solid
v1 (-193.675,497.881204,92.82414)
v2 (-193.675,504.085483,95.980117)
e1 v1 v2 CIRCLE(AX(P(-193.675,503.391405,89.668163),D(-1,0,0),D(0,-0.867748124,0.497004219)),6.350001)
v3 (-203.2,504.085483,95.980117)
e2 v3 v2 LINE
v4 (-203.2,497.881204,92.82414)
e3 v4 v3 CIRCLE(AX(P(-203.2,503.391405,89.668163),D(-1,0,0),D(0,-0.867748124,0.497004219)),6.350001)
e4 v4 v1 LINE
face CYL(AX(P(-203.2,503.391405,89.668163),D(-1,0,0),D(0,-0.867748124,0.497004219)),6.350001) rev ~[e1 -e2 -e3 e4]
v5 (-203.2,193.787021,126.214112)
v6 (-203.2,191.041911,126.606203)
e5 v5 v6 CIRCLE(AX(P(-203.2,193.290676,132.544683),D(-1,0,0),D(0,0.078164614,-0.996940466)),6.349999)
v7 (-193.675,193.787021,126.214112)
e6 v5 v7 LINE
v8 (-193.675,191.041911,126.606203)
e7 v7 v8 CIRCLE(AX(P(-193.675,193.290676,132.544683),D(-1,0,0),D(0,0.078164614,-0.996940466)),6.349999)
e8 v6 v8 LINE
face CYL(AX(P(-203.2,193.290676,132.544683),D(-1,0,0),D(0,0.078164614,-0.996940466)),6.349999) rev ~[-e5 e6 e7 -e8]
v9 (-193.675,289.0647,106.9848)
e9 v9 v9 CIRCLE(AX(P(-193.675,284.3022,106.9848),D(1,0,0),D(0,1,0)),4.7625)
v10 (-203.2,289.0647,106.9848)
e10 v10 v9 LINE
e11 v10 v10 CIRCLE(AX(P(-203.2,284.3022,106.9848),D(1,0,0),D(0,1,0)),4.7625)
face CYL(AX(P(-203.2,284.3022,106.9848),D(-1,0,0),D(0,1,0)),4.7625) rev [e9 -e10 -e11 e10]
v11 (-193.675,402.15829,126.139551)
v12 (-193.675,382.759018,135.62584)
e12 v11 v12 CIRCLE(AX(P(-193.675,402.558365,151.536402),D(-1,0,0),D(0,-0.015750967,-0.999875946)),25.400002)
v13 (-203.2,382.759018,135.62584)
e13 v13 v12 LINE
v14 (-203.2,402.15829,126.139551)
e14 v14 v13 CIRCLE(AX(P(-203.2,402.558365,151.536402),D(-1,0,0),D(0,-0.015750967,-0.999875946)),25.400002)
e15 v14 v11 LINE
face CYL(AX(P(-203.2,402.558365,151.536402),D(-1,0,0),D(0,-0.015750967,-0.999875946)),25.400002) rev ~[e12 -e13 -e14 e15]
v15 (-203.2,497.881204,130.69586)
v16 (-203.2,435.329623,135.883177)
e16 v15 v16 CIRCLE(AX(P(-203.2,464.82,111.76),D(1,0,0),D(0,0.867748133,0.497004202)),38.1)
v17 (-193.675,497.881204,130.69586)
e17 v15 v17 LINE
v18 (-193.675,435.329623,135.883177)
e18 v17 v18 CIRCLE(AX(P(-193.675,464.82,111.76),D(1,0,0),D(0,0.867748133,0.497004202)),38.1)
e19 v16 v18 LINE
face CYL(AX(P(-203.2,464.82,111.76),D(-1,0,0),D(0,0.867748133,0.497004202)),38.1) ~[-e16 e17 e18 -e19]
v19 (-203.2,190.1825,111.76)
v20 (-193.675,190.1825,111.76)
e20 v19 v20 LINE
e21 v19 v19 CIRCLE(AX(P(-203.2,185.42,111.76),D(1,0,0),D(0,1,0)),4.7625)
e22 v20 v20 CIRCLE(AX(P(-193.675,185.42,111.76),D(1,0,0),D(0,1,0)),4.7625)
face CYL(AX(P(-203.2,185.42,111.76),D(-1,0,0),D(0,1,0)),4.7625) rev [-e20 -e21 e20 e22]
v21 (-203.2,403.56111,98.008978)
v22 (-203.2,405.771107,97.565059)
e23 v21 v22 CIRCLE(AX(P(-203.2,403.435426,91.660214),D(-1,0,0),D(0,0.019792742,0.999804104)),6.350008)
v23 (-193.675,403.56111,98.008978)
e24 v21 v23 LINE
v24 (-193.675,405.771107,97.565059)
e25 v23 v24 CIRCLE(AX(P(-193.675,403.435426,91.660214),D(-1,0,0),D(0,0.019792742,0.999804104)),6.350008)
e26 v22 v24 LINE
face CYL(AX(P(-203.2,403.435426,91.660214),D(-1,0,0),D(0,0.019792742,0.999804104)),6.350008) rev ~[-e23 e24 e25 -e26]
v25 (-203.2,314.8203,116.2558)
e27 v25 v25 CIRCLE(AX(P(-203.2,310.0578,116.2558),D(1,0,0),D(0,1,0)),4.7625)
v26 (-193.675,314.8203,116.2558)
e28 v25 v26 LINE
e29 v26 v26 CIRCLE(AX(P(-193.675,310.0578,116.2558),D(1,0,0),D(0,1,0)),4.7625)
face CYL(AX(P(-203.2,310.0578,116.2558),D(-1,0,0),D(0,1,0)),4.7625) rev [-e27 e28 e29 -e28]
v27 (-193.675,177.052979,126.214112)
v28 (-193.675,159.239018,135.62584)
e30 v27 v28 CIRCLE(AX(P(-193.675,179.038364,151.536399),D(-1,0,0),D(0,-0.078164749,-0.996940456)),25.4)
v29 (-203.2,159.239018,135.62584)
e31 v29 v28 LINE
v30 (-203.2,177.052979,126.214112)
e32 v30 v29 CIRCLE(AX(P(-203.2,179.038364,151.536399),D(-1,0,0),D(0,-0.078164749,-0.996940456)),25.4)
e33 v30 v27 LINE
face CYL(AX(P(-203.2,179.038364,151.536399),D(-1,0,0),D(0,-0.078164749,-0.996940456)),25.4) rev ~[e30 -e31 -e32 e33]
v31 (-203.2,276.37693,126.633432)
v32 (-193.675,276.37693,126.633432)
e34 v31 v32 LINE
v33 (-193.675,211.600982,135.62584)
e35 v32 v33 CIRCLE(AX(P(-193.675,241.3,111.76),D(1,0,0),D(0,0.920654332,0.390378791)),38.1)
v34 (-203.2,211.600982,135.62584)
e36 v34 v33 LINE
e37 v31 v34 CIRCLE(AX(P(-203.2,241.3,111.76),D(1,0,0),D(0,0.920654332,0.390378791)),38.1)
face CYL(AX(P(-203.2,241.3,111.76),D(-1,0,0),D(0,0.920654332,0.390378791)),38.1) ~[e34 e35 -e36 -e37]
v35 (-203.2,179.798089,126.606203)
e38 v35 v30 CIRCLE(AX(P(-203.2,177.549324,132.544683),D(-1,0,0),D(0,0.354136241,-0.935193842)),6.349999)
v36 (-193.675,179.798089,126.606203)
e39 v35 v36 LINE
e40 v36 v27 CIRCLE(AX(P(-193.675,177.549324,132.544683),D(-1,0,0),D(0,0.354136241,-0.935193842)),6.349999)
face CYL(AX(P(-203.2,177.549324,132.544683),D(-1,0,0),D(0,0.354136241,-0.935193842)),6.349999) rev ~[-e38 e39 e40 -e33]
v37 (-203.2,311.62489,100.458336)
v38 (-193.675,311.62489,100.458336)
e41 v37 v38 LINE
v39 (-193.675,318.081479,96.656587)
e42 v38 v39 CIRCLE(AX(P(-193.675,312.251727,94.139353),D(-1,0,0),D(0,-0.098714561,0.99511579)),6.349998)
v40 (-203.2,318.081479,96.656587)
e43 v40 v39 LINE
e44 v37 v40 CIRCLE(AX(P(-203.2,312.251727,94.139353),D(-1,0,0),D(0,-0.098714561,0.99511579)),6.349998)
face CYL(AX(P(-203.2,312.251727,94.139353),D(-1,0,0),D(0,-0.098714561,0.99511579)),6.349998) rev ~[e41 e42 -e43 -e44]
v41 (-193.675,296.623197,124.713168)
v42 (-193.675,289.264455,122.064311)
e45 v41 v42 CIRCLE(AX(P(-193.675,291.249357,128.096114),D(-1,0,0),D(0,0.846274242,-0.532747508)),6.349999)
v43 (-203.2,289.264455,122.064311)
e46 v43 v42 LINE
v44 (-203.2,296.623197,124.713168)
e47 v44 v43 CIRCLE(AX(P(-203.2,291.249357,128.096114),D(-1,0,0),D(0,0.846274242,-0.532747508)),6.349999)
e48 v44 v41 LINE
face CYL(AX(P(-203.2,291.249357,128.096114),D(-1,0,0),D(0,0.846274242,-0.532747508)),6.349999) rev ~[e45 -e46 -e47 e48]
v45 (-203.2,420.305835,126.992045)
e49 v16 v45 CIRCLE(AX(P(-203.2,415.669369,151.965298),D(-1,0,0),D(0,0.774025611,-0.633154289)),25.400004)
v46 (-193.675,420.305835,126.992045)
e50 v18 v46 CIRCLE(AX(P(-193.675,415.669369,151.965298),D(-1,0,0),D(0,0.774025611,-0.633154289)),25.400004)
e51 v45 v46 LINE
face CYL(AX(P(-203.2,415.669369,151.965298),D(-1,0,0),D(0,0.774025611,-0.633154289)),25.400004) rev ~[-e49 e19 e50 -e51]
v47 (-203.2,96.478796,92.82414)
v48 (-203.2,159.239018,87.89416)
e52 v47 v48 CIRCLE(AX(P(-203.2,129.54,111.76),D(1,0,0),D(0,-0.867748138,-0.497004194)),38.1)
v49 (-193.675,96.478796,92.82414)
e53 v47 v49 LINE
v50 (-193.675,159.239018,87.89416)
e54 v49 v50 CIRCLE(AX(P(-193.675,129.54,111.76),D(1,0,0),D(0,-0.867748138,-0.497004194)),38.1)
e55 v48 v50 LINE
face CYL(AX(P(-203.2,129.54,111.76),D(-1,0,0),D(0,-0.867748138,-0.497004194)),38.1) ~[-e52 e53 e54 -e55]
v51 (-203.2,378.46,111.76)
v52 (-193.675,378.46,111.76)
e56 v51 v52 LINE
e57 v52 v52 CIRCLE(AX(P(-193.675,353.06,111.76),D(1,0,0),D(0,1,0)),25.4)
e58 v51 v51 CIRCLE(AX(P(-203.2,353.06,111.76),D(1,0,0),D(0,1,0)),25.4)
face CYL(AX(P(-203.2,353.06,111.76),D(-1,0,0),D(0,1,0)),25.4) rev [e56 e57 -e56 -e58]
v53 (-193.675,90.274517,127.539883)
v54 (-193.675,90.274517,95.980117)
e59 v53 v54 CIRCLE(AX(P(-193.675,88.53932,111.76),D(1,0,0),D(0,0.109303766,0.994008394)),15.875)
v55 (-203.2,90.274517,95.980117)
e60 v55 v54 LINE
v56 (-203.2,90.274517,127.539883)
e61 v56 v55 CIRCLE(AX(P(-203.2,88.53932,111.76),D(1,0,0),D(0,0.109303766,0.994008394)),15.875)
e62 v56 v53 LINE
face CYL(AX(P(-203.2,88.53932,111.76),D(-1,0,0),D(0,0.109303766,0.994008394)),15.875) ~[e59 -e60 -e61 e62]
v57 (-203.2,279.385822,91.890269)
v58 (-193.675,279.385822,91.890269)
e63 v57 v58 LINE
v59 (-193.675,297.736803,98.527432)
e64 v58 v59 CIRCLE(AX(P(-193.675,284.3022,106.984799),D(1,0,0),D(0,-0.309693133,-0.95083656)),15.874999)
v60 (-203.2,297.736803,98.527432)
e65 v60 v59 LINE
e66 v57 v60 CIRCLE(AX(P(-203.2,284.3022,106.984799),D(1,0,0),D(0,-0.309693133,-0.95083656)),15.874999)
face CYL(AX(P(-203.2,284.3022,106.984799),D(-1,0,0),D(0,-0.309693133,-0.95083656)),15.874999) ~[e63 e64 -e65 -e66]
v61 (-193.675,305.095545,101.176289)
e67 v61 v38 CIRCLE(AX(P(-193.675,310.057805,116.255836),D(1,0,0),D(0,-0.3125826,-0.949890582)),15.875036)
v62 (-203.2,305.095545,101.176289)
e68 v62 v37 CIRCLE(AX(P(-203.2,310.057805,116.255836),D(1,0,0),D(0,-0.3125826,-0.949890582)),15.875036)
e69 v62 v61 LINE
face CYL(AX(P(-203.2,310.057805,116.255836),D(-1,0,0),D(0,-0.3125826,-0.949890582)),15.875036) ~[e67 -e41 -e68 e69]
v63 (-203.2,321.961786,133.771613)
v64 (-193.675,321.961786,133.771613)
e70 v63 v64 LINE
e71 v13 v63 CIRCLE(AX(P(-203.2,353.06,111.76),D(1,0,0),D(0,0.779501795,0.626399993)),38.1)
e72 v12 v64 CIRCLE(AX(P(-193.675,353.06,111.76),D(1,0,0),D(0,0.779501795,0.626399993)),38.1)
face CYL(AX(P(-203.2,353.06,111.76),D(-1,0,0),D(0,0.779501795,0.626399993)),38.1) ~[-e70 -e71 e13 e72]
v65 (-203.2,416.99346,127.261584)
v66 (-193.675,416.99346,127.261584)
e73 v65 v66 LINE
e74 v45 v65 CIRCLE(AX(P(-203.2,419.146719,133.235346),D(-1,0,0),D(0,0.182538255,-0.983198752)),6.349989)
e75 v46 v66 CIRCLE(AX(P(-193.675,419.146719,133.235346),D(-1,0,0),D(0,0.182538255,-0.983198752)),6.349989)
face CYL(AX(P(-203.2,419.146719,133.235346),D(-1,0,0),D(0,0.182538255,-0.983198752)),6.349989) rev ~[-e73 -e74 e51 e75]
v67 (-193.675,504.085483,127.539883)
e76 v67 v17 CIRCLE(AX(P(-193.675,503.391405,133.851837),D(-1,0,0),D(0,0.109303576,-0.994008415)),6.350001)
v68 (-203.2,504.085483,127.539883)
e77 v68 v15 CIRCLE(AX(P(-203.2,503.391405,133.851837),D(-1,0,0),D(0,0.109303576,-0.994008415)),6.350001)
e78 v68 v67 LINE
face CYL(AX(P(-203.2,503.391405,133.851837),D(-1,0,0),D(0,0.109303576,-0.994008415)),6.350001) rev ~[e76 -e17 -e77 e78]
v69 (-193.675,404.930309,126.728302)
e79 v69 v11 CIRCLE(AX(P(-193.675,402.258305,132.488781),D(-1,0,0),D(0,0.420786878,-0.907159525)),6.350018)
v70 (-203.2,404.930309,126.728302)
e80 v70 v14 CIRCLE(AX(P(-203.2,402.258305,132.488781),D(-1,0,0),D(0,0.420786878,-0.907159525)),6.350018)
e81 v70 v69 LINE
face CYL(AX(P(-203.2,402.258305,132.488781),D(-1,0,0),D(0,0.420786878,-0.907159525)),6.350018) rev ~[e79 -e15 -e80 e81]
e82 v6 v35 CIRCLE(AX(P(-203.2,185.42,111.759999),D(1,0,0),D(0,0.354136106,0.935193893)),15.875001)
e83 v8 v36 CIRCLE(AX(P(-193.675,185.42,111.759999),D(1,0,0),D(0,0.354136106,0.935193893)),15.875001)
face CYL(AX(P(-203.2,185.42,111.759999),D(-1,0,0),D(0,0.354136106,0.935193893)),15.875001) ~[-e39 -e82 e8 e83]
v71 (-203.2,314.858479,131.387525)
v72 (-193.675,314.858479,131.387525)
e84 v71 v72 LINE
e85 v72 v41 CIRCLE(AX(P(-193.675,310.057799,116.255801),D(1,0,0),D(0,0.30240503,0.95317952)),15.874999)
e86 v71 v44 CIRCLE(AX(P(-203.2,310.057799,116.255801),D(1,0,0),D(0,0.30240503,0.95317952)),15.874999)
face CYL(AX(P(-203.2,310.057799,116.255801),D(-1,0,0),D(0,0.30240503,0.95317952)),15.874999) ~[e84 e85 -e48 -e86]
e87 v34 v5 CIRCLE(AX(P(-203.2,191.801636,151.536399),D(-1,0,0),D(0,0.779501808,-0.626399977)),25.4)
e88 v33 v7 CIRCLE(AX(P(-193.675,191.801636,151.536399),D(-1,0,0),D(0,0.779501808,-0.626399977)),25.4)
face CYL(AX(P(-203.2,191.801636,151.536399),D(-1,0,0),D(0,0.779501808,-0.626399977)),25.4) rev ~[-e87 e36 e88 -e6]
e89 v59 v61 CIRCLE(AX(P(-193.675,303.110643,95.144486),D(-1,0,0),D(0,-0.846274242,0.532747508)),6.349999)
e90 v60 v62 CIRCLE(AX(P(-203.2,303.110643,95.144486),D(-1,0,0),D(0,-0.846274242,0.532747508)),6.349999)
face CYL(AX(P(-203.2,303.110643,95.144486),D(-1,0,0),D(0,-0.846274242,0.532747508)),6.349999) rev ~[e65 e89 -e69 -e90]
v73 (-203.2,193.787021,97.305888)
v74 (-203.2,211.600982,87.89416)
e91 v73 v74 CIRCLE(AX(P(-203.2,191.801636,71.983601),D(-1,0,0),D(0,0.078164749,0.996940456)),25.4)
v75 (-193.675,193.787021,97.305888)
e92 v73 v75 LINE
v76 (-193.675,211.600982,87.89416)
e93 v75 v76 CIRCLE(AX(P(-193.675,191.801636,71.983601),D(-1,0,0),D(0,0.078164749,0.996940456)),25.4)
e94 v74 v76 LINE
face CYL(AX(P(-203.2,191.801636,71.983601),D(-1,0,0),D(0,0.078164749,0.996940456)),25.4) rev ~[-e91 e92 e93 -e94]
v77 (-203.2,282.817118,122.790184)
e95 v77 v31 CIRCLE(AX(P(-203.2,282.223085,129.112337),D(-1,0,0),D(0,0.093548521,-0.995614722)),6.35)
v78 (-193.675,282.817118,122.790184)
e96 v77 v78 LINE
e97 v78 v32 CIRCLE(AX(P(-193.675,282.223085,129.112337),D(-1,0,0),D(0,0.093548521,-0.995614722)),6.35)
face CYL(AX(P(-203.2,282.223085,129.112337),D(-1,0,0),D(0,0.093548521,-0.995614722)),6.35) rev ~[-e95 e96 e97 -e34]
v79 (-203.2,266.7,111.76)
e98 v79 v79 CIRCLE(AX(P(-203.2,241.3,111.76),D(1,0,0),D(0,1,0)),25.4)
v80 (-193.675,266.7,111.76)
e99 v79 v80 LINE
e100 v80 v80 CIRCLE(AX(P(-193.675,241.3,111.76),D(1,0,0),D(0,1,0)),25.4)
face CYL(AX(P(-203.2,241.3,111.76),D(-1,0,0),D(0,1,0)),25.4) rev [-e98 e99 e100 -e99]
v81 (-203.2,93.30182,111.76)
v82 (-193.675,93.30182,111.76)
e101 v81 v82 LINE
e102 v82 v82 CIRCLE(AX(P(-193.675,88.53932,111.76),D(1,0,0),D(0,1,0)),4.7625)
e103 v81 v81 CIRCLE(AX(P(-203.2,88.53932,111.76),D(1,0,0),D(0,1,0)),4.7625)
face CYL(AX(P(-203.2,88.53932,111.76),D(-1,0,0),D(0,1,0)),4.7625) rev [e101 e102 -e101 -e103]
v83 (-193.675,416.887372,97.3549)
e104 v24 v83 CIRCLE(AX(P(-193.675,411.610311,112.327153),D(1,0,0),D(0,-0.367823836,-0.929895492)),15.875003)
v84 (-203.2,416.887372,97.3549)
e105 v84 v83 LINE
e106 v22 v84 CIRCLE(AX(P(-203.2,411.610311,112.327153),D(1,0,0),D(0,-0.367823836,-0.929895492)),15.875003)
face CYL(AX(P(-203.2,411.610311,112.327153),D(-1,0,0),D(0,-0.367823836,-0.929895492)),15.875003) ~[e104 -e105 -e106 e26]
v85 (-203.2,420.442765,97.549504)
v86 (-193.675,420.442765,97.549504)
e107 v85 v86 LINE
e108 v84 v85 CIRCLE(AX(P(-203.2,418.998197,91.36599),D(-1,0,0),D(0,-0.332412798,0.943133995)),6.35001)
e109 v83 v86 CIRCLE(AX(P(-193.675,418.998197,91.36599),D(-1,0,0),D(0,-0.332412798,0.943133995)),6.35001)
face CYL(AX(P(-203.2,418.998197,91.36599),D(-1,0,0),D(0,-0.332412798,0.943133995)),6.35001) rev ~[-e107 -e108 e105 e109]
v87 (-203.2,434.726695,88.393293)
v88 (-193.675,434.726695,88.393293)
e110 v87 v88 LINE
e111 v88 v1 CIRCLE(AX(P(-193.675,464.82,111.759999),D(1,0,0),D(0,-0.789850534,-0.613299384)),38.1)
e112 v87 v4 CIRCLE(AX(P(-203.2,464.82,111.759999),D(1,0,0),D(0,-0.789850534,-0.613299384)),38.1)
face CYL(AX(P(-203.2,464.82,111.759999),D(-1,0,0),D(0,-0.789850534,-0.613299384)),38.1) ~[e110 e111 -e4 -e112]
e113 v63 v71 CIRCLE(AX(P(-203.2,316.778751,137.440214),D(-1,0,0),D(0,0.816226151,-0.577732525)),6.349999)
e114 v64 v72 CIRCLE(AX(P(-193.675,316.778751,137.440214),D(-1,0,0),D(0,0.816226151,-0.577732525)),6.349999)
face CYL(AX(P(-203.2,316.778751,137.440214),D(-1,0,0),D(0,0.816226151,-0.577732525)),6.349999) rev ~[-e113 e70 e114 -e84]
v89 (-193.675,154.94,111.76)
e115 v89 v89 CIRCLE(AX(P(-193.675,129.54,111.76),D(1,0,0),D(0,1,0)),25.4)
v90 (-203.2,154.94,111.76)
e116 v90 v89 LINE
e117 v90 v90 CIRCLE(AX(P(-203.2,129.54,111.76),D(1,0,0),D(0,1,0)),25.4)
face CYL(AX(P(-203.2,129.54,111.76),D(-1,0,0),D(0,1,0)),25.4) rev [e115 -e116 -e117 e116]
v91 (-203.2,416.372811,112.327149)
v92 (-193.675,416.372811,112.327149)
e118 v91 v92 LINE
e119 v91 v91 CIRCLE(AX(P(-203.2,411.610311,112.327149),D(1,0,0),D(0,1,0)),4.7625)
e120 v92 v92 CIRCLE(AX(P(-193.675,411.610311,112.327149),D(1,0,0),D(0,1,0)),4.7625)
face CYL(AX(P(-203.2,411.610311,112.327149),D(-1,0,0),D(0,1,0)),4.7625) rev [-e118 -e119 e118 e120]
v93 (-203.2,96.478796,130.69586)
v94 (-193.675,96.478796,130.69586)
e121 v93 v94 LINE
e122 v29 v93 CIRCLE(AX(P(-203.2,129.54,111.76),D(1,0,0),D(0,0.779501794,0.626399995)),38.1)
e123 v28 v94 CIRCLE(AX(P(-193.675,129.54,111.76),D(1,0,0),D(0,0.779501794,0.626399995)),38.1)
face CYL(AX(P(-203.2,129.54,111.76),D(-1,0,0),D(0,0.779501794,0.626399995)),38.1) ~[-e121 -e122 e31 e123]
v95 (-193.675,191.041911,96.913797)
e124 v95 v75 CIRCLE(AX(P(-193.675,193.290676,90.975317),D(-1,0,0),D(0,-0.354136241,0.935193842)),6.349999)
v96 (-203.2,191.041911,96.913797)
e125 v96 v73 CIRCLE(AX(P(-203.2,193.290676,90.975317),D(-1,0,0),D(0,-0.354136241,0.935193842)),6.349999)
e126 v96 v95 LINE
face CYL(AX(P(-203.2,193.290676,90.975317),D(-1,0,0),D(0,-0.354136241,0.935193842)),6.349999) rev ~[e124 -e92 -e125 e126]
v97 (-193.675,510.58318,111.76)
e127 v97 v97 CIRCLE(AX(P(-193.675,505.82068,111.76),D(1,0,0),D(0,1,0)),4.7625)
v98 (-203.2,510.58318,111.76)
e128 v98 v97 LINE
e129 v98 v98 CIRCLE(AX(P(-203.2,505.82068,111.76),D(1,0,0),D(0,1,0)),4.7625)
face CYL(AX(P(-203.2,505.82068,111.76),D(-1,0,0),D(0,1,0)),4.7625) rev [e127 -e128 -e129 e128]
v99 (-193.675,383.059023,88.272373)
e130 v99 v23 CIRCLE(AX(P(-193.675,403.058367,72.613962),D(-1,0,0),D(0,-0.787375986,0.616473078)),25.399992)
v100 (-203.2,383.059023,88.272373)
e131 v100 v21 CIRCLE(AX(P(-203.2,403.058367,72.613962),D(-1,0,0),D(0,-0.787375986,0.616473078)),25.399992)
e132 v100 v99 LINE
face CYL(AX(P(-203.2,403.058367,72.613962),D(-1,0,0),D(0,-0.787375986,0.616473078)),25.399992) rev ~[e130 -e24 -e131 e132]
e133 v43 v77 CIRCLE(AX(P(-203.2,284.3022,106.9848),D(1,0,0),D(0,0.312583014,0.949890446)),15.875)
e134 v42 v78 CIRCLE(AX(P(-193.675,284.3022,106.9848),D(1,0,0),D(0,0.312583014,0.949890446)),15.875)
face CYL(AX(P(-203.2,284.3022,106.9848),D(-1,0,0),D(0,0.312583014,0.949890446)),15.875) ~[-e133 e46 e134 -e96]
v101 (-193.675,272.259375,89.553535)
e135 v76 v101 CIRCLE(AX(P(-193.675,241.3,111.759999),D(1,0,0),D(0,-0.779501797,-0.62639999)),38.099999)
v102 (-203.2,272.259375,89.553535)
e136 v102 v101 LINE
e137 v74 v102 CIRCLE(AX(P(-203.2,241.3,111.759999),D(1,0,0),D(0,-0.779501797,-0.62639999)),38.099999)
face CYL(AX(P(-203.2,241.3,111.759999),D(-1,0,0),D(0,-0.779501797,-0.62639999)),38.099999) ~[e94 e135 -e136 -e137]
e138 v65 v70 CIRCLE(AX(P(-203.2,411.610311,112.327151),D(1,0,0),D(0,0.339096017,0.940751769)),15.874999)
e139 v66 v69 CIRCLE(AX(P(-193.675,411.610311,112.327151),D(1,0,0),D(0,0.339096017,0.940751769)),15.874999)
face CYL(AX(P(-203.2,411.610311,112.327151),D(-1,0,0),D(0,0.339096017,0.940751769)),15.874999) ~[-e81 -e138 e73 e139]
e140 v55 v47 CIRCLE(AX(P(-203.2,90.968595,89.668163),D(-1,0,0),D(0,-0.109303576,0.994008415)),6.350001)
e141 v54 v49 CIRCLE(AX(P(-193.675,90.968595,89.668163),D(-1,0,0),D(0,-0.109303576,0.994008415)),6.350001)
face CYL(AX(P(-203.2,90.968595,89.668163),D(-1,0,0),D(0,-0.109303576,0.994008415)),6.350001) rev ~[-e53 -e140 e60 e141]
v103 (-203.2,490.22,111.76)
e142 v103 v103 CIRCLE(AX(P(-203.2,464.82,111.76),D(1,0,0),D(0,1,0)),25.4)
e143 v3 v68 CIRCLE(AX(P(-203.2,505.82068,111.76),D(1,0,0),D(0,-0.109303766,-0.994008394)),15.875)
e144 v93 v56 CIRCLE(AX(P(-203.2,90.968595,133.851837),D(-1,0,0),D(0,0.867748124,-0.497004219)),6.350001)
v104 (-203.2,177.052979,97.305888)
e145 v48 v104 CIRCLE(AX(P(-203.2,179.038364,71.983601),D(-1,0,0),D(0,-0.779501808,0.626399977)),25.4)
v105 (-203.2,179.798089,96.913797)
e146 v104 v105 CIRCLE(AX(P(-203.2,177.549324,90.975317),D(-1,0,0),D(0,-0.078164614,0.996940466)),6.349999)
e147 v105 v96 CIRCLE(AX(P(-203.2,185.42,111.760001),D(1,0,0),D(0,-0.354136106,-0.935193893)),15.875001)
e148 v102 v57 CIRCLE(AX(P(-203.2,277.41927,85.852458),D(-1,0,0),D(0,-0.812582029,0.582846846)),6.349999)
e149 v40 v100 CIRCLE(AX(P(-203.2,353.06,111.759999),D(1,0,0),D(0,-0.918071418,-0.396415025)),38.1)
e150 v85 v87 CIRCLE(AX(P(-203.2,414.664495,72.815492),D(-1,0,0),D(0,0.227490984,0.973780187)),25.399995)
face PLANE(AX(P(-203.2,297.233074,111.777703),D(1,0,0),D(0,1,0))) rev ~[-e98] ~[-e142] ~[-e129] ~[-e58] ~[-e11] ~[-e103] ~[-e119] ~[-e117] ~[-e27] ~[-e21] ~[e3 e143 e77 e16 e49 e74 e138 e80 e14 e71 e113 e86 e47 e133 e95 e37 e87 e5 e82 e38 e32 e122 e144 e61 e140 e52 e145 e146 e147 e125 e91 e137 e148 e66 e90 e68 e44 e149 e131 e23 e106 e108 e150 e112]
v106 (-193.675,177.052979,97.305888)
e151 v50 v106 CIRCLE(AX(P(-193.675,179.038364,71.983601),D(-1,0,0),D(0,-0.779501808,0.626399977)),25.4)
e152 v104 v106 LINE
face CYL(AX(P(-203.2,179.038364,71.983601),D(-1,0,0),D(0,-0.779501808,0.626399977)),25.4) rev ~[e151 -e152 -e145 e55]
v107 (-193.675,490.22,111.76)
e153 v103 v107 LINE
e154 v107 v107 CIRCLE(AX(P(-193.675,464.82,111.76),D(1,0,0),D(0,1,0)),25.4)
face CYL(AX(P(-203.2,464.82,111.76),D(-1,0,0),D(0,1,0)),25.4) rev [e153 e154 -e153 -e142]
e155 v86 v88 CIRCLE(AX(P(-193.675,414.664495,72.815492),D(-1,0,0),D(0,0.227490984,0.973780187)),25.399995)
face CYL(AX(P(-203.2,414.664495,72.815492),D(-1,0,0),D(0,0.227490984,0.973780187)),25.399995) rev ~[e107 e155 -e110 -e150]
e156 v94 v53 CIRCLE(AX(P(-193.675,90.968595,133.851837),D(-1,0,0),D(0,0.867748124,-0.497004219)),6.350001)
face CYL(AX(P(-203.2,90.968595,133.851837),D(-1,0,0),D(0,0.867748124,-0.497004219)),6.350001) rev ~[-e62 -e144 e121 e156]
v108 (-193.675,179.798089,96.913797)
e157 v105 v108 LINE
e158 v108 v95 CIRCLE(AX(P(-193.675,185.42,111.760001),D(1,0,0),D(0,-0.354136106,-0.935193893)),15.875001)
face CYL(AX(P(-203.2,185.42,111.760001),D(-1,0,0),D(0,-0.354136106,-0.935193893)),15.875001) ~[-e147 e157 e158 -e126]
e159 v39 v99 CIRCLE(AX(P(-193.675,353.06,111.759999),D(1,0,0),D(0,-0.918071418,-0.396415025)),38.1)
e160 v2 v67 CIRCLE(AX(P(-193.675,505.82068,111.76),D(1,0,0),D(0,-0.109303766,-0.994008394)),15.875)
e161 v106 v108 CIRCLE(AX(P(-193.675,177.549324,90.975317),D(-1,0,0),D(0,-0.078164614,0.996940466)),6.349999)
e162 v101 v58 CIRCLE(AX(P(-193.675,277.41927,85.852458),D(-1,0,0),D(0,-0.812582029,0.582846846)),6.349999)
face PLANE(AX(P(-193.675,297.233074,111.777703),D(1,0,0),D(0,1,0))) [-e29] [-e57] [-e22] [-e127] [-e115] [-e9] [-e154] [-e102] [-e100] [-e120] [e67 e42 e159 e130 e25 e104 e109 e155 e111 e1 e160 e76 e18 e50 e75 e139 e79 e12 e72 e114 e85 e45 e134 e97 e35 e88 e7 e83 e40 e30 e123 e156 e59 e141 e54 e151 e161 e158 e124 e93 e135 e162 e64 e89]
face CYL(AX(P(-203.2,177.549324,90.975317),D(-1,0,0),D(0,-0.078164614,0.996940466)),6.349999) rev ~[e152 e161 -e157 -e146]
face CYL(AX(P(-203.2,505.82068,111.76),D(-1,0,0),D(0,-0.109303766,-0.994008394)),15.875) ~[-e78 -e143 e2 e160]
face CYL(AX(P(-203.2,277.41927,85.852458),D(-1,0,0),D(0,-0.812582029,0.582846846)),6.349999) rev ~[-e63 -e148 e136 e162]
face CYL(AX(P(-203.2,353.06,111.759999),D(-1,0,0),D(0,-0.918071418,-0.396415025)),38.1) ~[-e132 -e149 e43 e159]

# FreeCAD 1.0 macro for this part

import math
import FreeCAD as App
import Part
import Sketcher

V = App.Vector
Q = App.Units.Quantity

doc = App.newDocument("Part")
body = doc.addObject("PartDesign::Body", "Body")

# Sketch on YZ plane
sketch1 = body.newObject("Sketcher::SketchObject", "Sketch")
sketch1.AttachmentSupport = (doc.getObject("YZ_Plane"), [""])
sketch1.MapMode = "FlatFace"
sketch1.AttachmentOffset = App.Placement(V(0, 0, -8 * 25.4), App.Rotation())
sketch1.addGeometry(Part.ArcOfCircle(Part.Circle(V(503.391405, 133.851837, 0), V(0, 0, 1), 6.350001), math.radians(-150.198002), math.radians(-83.724829)), False)
sketch1.addGeometry(Part.ArcOfCircle(Part.Circle(V(464.82, 111.76, 0), V(0, 0, 1), 38.1), math.radians(29.801997), math.radians(140.716777)), False)
sketch1.addGeometry(Part.ArcOfCircle(Part.Circle(V(415.669369, 151.965298, 0), V(0, 0, 1), 25.400004), math.radians(-79.482375), math.radians(-39.283226)), False)
sketch1.addGeometry(Part.ArcOfCircle(Part.Circle(V(419.146719, 133.235346, 0), V(0, 0, 1), 6.349989), math.radians(-109.821838), math.radians(-79.482359)), False)
sketch1.addGeometry(Part.ArcOfCircle(Part.Circle(V(411.610311, 112.327151, 0), V(0, 0, 1), 15.874999), math.radians(70.178192), math.radians(114.884321)), False)
sketch1.addGeometry(Part.ArcOfCircle(Part.Circle(V(402.258305, 132.488781, 0), V(0, 0, 1), 6.350018), math.radians(-90.902464), math.radians(-65.115724)), False)
sketch1.addGeometry(Part.ArcOfCircle(Part.Circle(V(402.558365, 151.536402, 0), V(0, 0, 1), 25.400002), math.radians(-141.21498), math.radians(-90.902501)), False)
sketch1.addGeometry(Part.ArcOfCircle(Part.Circle(V(353.06, 111.76, 0), V(0, 0, 1), 38.1), math.radians(38.785017), math.radians(144.708775)), False)
sketch1.addGeometry(Part.ArcOfCircle(Part.Circle(V(316.778751, 137.440214, 0), V(0, 0, 1), 6.349999), math.radians(-107.602113), math.radians(-35.291218)), False)
sketch1.addGeometry(Part.ArcOfCircle(Part.Circle(V(310.057799, 116.255801, 0), V(0, 0, 1), 15.874999), math.radians(72.397888), math.radians(147.808715)), False)
sketch1.addGeometry(Part.ArcOfCircle(Part.Circle(V(291.249357, 128.096114, 0), V(0, 0, 1), 6.349999), math.radians(-108.214965), math.radians(-32.191282)), False)
sketch1.addGeometry(Part.ArcOfCircle(Part.Circle(V(284.3022, 106.9848, 0), V(0, 0, 1), 15.875), math.radians(71.785036), math.radians(95.36778)), False)
sketch1.addGeometry(Part.ArcOfCircle(Part.Circle(V(282.223085, 129.112337, 0), V(0, 0, 1), 6.35), math.radians(-157.021928), math.radians(-84.632216)), False)
sketch1.addGeometry(Part.ArcOfCircle(Part.Circle(V(241.3, 111.76, 0), V(0, 0, 1), 38.1), math.radians(22.978071), math.radians(141.214982)), False)
sketch1.addGeometry(Part.ArcOfCircle(Part.Circle(V(191.801636, 151.536399, 0), V(0, 0, 1), 25.4), math.radians(-85.516917), math.radians(-38.785016)), False)
sketch1.addGeometry(Part.ArcOfCircle(Part.Circle(V(193.290676, 132.544683, 0), V(0, 0, 1), 6.349999), math.radians(-110.740516), math.radians(-85.516925)), False)
sketch1.addGeometry(Part.ArcOfCircle(Part.Circle(V(185.42, 111.759999, 0), V(0, 0, 1), 15.875001), math.radians(69.259492), math.radians(110.740508)), False)
sketch1.addGeometry(Part.ArcOfCircle(Part.Circle(V(177.549324, 132.544683, 0), V(0, 0, 1), 6.349999), math.radians(-94.483075), math.radians(-69.259484)), False)
sketch1.addGeometry(Part.ArcOfCircle(Part.Circle(V(179.038364, 151.536399, 0), V(0, 0, 1), 25.4), math.radians(-141.214984), math.radians(-94.483083)), False)
sketch1.addGeometry(Part.ArcOfCircle(Part.Circle(V(129.54, 111.76, 0), V(0, 0, 1), 38.1), math.radians(38.785017), math.radians(150.198004)), False)
sketch1.addGeometry(Part.ArcOfCircle(Part.Circle(V(90.968595, 133.851837, 0), V(0, 0, 1), 6.350001), math.radians(-96.275171), math.radians(-29.801998)), False)
sketch1.addGeometry(Part.ArcOfCircle(Part.Circle(V(88.53932, 111.76, 0), V(0, 0, 1), 15.875), math.radians(83.724818), math.radians(276.275182)), False)
sketch1.addGeometry(Part.ArcOfCircle(Part.Circle(V(90.968595, 89.668163, 0), V(0, 0, 1), 6.350001), math.radians(29.801998), math.radians(96.275171)), False)
sketch1.addGeometry(Part.ArcOfCircle(Part.Circle(V(129.54, 111.76, 0), V(0, 0, 1), 38.1), math.radians(-150.198004), math.radians(-38.785017)), False)
sketch1.addGeometry(Part.ArcOfCircle(Part.Circle(V(179.038364, 71.983601, 0), V(0, 0, 1), 25.4), math.radians(94.483083), math.radians(141.214984)), False)
sketch1.addGeometry(Part.ArcOfCircle(Part.Circle(V(177.549324, 90.975317, 0), V(0, 0, 1), 6.349999), math.radians(69.259484), math.radians(94.483075)), False)
sketch1.addGeometry(Part.ArcOfCircle(Part.Circle(V(185.42, 111.760001, 0), V(0, 0, 1), 15.875001), math.radians(-110.740508), math.radians(-69.259492)), False)
sketch1.addGeometry(Part.ArcOfCircle(Part.Circle(V(193.290676, 90.975317, 0), V(0, 0, 1), 6.349999), math.radians(85.516925), math.radians(110.740516)), False)
sketch1.addGeometry(Part.ArcOfCircle(Part.Circle(V(191.801636, 71.983601, 0), V(0, 0, 1), 25.4), math.radians(38.785016), math.radians(85.516917)), False)
sketch1.addGeometry(Part.ArcOfCircle(Part.Circle(V(241.3, 111.759999, 0), V(0, 0, 1), 38.099999), math.radians(-141.214983), math.radians(-35.651024)), False)
sketch1.addGeometry(Part.ArcOfCircle(Part.Circle(V(277.41927, 85.852458, 0), V(0, 0, 1), 6.349999), math.radians(71.959253), math.radians(144.348975)), False)
sketch1.addGeometry(Part.ArcOfCircle(Part.Circle(V(284.3022, 106.984799, 0), V(0, 0, 1), 15.874999), math.radians(-108.040738), math.radians(-32.191283)), False)
sketch1.addGeometry(Part.ArcOfCircle(Part.Circle(V(303.110643, 95.144486, 0), V(0, 0, 1), 6.349999), math.radians(71.785035), math.radians(147.808718)), False)
sketch1.addGeometry(Part.ArcOfCircle(Part.Circle(V(310.057805, 116.255836, 0), V(0, 0, 1), 15.875036), math.radians(-108.214939), math.radians(-84.33489)), False)
sketch1.addGeometry(Part.ArcOfCircle(Part.Circle(V(312.251727, 94.139353, 0), V(0, 0, 1), 6.349998), math.radians(23.354251), math.radians(95.665154)), False)
sketch1.addGeometry(Part.ArcOfCircle(Part.Circle(V(353.06, 111.759999, 0), V(0, 0, 1), 38.1), math.radians(-156.645745), math.radians(-38.059039)), False)
sketch1.addGeometry(Part.ArcOfCircle(Part.Circle(V(403.058367, 72.613962, 0), V(0, 0, 1), 25.399992), math.radians(88.865869), math.radians(141.940965)), False)
sketch1.addGeometry(Part.ArcOfCircle(Part.Circle(V(403.435426, 91.660214, 0), V(0, 0, 1), 6.350008), math.radians(68.41856), math.radians(88.865885)), False)
sketch1.addGeometry(Part.ArcOfCircle(Part.Circle(V(411.610311, 112.327153, 0), V(0, 0, 1), 15.875003), math.radians(-111.58147), math.radians(-70.584687)), False)
sketch1.addGeometry(Part.ArcOfCircle(Part.Circle(V(418.998197, 91.36599, 0), V(0, 0, 1), 6.35001), math.radians(76.850614), math.radians(109.415288)), False)
sketch1.addGeometry(Part.ArcOfCircle(Part.Circle(V(414.664495, 72.815492, 0), V(0, 0, 1), 25.399995), math.radians(37.828453), math.radians(76.8506)), False)
sketch1.addGeometry(Part.ArcOfCircle(Part.Circle(V(464.82, 111.759999, 0), V(0, 0, 1), 38.1), math.radians(-142.171546), math.radians(-29.801996)), False)
sketch1.addGeometry(Part.ArcOfCircle(Part.Circle(V(503.391405, 89.668163, 0), V(0, 0, 1), 6.350001), math.radians(83.724829), math.radians(150.198002)), False)
sketch1.addGeometry(Part.ArcOfCircle(Part.Circle(V(505.82068, 111.76, 0), V(0, 0, 1), 15.875), math.radians(-96.275182), math.radians(96.275182)), False)
sketch1.addGeometry(Part.Circle(V(284.3022, 106.9848, 0), V(0, 0, 1), 4.7625), False)
sketch1.addGeometry(Part.Circle(V(88.53932, 111.76, 0), V(0, 0, 1), 4.7625), False)
sketch1.addGeometry(Part.Circle(V(129.54, 111.76, 0), V(0, 0, 1), 25.4), False)
sketch1.addGeometry(Part.Circle(V(185.42, 111.76, 0), V(0, 0, 1), 4.7625), False)
sketch1.addGeometry(Part.Circle(V(241.3, 111.76, 0), V(0, 0, 1), 25.4), False)
sketch1.addGeometry(Part.Circle(V(310.0578, 116.2558, 0), V(0, 0, 1), 4.7625), False)
sketch1.addGeometry(Part.Circle(V(353.06, 111.76, 0), V(0, 0, 1), 25.4), False)
sketch1.addGeometry(Part.Circle(V(411.610311, 112.327149, 0), V(0, 0, 1), 4.7625), False)
sketch1.addGeometry(Part.Circle(V(464.82, 111.76, 0), V(0, 0, 1), 25.4), False)
sketch1.addGeometry(Part.Circle(V(505.82068, 111.76, 0), V(0, 0, 1), 4.7625), False)
sketch1.addConstraint(Sketcher.Constraint("Coincident", 0, 1, 1, 1))
sketch1.addConstraint(Sketcher.Constraint("Coincident", 1, 2, 2, 2))
sketch1.addConstraint(Sketcher.Constraint("Coincident", 2, 1, 3, 2))
sketch1.addConstraint(Sketcher.Constraint("Coincident", 3, 1, 4, 1))
sketch1.addConstraint(Sketcher.Constraint("Coincident", 4, 2, 5, 2))
sketch1.addConstraint(Sketcher.Constraint("Coincident", 5, 1, 6, 2))
sketch1.addConstraint(Sketcher.Constraint("Coincident", 6, 1, 7, 1))
sketch1.addConstraint(Sketcher.Constraint("Coincident", 7, 2, 8, 2))
sketch1.addConstraint(Sketcher.Constraint("Coincident", 8, 1, 9, 1))
sketch1.addConstraint(Sketcher.Constraint("Coincident", 9, 2, 10, 2))
sketch1.addConstraint(Sketcher.Constraint("Coincident", 10, 1, 11, 1))
sketch1.addConstraint(Sketcher.Constraint("Coincident", 11, 2, 12, 2))
sketch1.addConstraint(Sketcher.Constraint("Coincident", 12, 1, 13, 1))
sketch1.addConstraint(Sketcher.Constraint("Coincident", 13, 2, 14, 2))
sketch1.addConstraint(Sketcher.Constraint("Coincident", 14, 1, 15, 2))
sketch1.addConstraint(Sketcher.Constraint("Coincident", 15, 1, 16, 1))
sketch1.addConstraint(Sketcher.Constraint("Coincident", 16, 2, 17, 2))
sketch1.addConstraint(Sketcher.Constraint("Coincident", 17, 1, 18, 2))
sketch1.addConstraint(Sketcher.Constraint("Coincident", 18, 1, 19, 1))
sketch1.addConstraint(Sketcher.Constraint("Coincident", 19, 2, 20, 2))
sketch1.addConstraint(Sketcher.Constraint("Coincident", 20, 1, 21, 1))
sketch1.addConstraint(Sketcher.Constraint("Coincident", 21, 2, 22, 2))
sketch1.addConstraint(Sketcher.Constraint("Coincident", 22, 1, 23, 1))
sketch1.addConstraint(Sketcher.Constraint("Coincident", 23, 2, 24, 2))
sketch1.addConstraint(Sketcher.Constraint("Coincident", 24, 1, 25, 2))
sketch1.addConstraint(Sketcher.Constraint("Coincident", 25, 1, 26, 1))
sketch1.addConstraint(Sketcher.Constraint("Coincident", 26, 2, 27, 2))
sketch1.addConstraint(Sketcher.Constraint("Coincident", 27, 1, 28, 2))
sketch1.addConstraint(Sketcher.Constraint("Coincident", 28, 1, 29, 1))
sketch1.addConstraint(Sketcher.Constraint("Coincident", 29, 2, 30, 2))
sketch1.addConstraint(Sketcher.Constraint("Coincident", 30, 1, 31, 1))
sketch1.addConstraint(Sketcher.Constraint("Coincident", 31, 2, 32, 2))
sketch1.addConstraint(Sketcher.Constraint("Coincident", 32, 1, 33, 1))
sketch1.addConstraint(Sketcher.Constraint("Coincident", 33, 2, 34, 2))
sketch1.addConstraint(Sketcher.Constraint("Coincident", 34, 1, 35, 1))
sketch1.addConstraint(Sketcher.Constraint("Coincident", 35, 2, 36, 2))
sketch1.addConstraint(Sketcher.Constraint("Coincident", 36, 1, 37, 2))
sketch1.addConstraint(Sketcher.Constraint("Coincident", 37, 1, 38, 1))
sketch1.addConstraint(Sketcher.Constraint("Coincident", 38, 2, 39, 2))
sketch1.addConstraint(Sketcher.Constraint("Coincident", 39, 1, 40, 2))
sketch1.addConstraint(Sketcher.Constraint("Coincident", 40, 1, 41, 1))
sketch1.addConstraint(Sketcher.Constraint("Coincident", 41, 2, 42, 2))
sketch1.addConstraint(Sketcher.Constraint("Coincident", 42, 1, 43, 1))
sketch1.addConstraint(Sketcher.Constraint("Coincident", 43, 2, 0, 2))
sketch1.addConstraint(Sketcher.Constraint("Coincident", 23, 3, 19, 3))
sketch1.addConstraint(Sketcher.Constraint("Coincident", 26, 3, 16, 3))
sketch1.addConstraint(Sketcher.Constraint("Coincident", 29, 3, 13, 3))
sketch1.addConstraint(Sketcher.Constraint("Coincident", 31, 3, 11, 3))
sketch1.addConstraint(Sketcher.Constraint("Coincident", 35, 3, 7, 3))
sketch1.addConstraint(Sketcher.Constraint("Coincident", 38, 3, 4, 3))
sketch1.addConstraint(Sketcher.Constraint("Coincident", 41, 3, 1, 3))
sketch1.addConstraint(Sketcher.Constraint("Coincident", 44, 3, 11, 3))
sketch1.addConstraint(Sketcher.Constraint("Coincident", 45, 3, 21, 3))
sketch1.addConstraint(Sketcher.Constraint("Coincident", 46, 3, 19, 3))
sketch1.addConstraint(Sketcher.Constraint("Coincident", 47, 3, 16, 3))
sketch1.addConstraint(Sketcher.Constraint("Coincident", 48, 3, 13, 3))
sketch1.addConstraint(Sketcher.Constraint("Coincident", 49, 3, 9, 3))
sketch1.addConstraint(Sketcher.Constraint("Coincident", 50, 3, 7, 3))
sketch1.addConstraint(Sketcher.Constraint("Coincident", 51, 3, 4, 3))
sketch1.addConstraint(Sketcher.Constraint("Coincident", 52, 3, 1, 3))
sketch1.addConstraint(Sketcher.Constraint("Coincident", 53, 3, 43, 3))
sketch1.addConstraint(Sketcher.Constraint("Diameter", 46, Q("2 in")))
sketch1.addConstraint(Sketcher.Constraint("Diameter", 48, Q("2 in")))
sketch1.addConstraint(Sketcher.Constraint("Diameter", 50, Q("2 in")))
sketch1.addConstraint(Sketcher.Constraint("Diameter", 52, Q("2 in")))
sketch1.addConstraint(Sketcher.Constraint("Radius", 2, Q("1.0000002 in")))
sketch1.addConstraint(Sketcher.Constraint("Radius", 6, Q("1.0000001 in")))
sketch1.addConstraint(Sketcher.Constraint("Radius", 14, Q("1 in")))
sketch1.addConstraint(Sketcher.Constraint("Radius", 18, Q("1 in")))
sketch1.addConstraint(Sketcher.Constraint("Radius", 24, Q("1 in")))
sketch1.addConstraint(Sketcher.Constraint("Radius", 28, Q("1 in")))
sketch1.addConstraint(Sketcher.Constraint("Radius", 1, Q("1.5 in")))
sketch1.addConstraint(Sketcher.Constraint("Radius", 7, Q("1.5 in")))
sketch1.addConstraint(Sketcher.Constraint("Radius", 13, Q("1.5 in")))
sketch1.addConstraint(Sketcher.Constraint("Radius", 19, Q("1.5 in")))
sketch1.addConstraint(Sketcher.Constraint("Radius", 23, Q("1.5 in")))
sketch1.addConstraint(Sketcher.Constraint("Radius", 29, Q("1.5 in")))
sketch1.addConstraint(Sketcher.Constraint("Radius", 35, Q("1.5 in")))
sketch1.addConstraint(Sketcher.Constraint("Radius", 41, Q("1.5 in")))
sketch1.addConstraint(Sketcher.Constraint("Radius", 0, Q("0.25 in")))
sketch1.addConstraint(Sketcher.Constraint("Radius", 8, Q("0.25 in")))
sketch1.addConstraint(Sketcher.Constraint("Radius", 10, Q("0.2499999 in")))
sketch1.addConstraint(Sketcher.Constraint("Radius", 12, Q("0.25 in")))
sketch1.addConstraint(Sketcher.Constraint("Radius", 15, Q("0.25 in")))
sketch1.addConstraint(Sketcher.Constraint("Radius", 17, Q("0.25 in")))
sketch1.addConstraint(Sketcher.Constraint("Radius", 20, Q("0.25 in")))
sketch1.addConstraint(Sketcher.Constraint("Radius", 22, Q("0.25 in")))
sketch1.addConstraint(Sketcher.Constraint("Radius", 25, Q("0.25 in")))
sketch1.addConstraint(Sketcher.Constraint("Radius", 27, Q("0.25 in")))
sketch1.addConstraint(Sketcher.Constraint("Radius", 30, Q("0.25 in")))
sketch1.addConstraint(Sketcher.Constraint("Radius", 32, Q("0.2499999 in")))
sketch1.addConstraint(Sketcher.Constraint("Radius", 34, Q("0.2499999 in")))
sketch1.addConstraint(Sketcher.Constraint("Radius", 42, Q("0.25 in")))
sketch1.addConstraint(Sketcher.Constraint("Diameter", 44, Q("0.375 in")))
sketch1.addConstraint(Sketcher.Constraint("Diameter", 45, Q("0.375 in")))
sketch1.addConstraint(Sketcher.Constraint("Diameter", 47, Q("0.375 in")))
sketch1.addConstraint(Sketcher.Constraint("Diameter", 49, Q("0.375 in")))
sketch1.addConstraint(Sketcher.Constraint("Diameter", 51, Q("0.375 in")))
sketch1.addConstraint(Sketcher.Constraint("Diameter", 53, Q("0.375 in")))
sketch1.addConstraint(Sketcher.Constraint("Radius", 4, Q("0.6249999 in")))
sketch1.addConstraint(Sketcher.Constraint("Radius", 9, Q("0.625 in")))
sketch1.addConstraint(Sketcher.Constraint("Radius", 11, Q("0.625 in")))
sketch1.addConstraint(Sketcher.Constraint("Radius", 16, Q("0.625 in")))
sketch1.addConstraint(Sketcher.Constraint("Radius", 21, Q("0.625 in")))
sketch1.addConstraint(Sketcher.Constraint("Radius", 26, Q("0.625 in")))
sketch1.addConstraint(Sketcher.Constraint("Radius", 31, Q("0.625 in")))
sketch1.addConstraint(Sketcher.Constraint("Radius", 38, Q("0.6250001 in")))
sketch1.addConstraint(Sketcher.Constraint("Radius", 43, Q("0.625 in")))
sketch1.addConstraint(Sketcher.Constraint("DistanceX", -1, 1, 1, 3, Q("18.3 in")))
sketch1.addConstraint(Sketcher.Constraint("DistanceY", -1, 1, 1, 3, Q("4.4 in")))
sketch1.addConstraint(Sketcher.Constraint("DistanceX", -1, 1, 7, 3, Q("13.9 in")))
sketch1.addConstraint(Sketcher.Constraint("DistanceY", -1, 1, 7, 3, Q("4.4 in")))
sketch1.addConstraint(Sketcher.Constraint("DistanceX", -1, 1, 13, 3, Q("9.5 in")))
sketch1.addConstraint(Sketcher.Constraint("DistanceY", -1, 1, 13, 3, Q("4.4 in")))
sketch1.addConstraint(Sketcher.Constraint("DistanceX", -1, 1, 16, 3, Q("7.3 in")))
sketch1.addConstraint(Sketcher.Constraint("DistanceY", -1, 1, 16, 3, Q("4.4 in")))
sketch1.addConstraint(Sketcher.Constraint("DistanceX", -1, 1, 19, 3, Q("5.1 in")))
sketch1.addConstraint(Sketcher.Constraint("DistanceY", -1, 1, 19, 3, Q("4.4 in")))
sketch1.addConstraint(Sketcher.Constraint("DistanceY", -1, 1, 21, 3, Q("4.4 in")))
sketch1.addConstraint(Sketcher.Constraint("DistanceY", -1, 1, 43, 3, Q("4.4 in")))
sketch1.addConstraint(Sketcher.Constraint("DistanceY", -1, 1, 6, 3, Q("5.9660001 in")))
sketch1.addConstraint(Sketcher.Constraint("DistanceX", -1, 1, 9, 3, Q("12.207 in")))
sketch1.addConstraint(Sketcher.Constraint("DistanceY", -1, 1, 9, 3, Q("4.577 in")))
sketch1.addConstraint(Sketcher.Constraint("DistanceX", -1, 1, 11, 3, Q("11.193 in")))
sketch1.addConstraint(Sketcher.Constraint("DistanceY", -1, 1, 11, 3, Q("4.212 in")))
sketch1.addConstraint(Sketcher.Constraint("DistanceY", -1, 1, 14, 3, Q("5.966 in")))
sketch1.addConstraint(Sketcher.Constraint("DistanceY", -1, 1, 18, 3, Q("5.966 in")))
sketch1.addConstraint(Sketcher.Constraint("DistanceY", -1, 1, 24, 3, Q("2.834 in")))
sketch1.addConstraint(Sketcher.Constraint("DistanceY", -1, 1, 28, 3, Q("2.834 in")))
sketch1.addConstraint(Sketcher.Constraint("DistanceX", -1, 1, 33, 3, Q("12.2070002 in")))
sketch1.addConstraint(Sketcher.Constraint("Radius", 3, Q("6.349989 mm")))
sketch1.addConstraint(Sketcher.Constraint("Radius", 39, Q("6.35001 mm")))
sketch1.addConstraint(Sketcher.Constraint("DistanceX", -1, 1, 21, 3, Q("3.4858 in")))
sketch1.addConstraint(Sketcher.Constraint("DistanceX", -1, 1, 43, 3, Q("19.9142 in")))
sketch1.addConstraint(Sketcher.Constraint("DistanceY", -1, 1, 6, 1, Q("5.3396 in")))
sketch1.addConstraint(Sketcher.Constraint("DistanceY", -1, 1, 13, 2, Q("5.3396 in")))
sketch1.addConstraint(Sketcher.Constraint("DistanceY", -1, 1, 18, 1, Q("5.3396 in")))
sketch1.addConstraint(Sketcher.Constraint("DistanceY", -1, 1, 23, 2, Q("3.4604 in")))
sketch1.addConstraint(Sketcher.Constraint("DistanceY", -1, 1, 28, 1, Q("3.4604 in")))
sketch1.addConstraint(Sketcher.Constraint("Radius", 5, Q("6.350018 mm")))
sketch1.addConstraint(Sketcher.Constraint("Radius", 33, Q("15.875036 mm")))
sketch1.addConstraint(Sketcher.Constraint("Radius", 36, Q("25.399992 mm")))
sketch1.addConstraint(Sketcher.Constraint("Radius", 37, Q("6.350008 mm")))
sketch1.addConstraint(Sketcher.Constraint("Radius", 40, Q("25.399995 mm")))
sketch1.addConstraint(Sketcher.Constraint("DistanceY", -1, 1, 2, 3, Q("151.965298 mm")))
sketch1.addConstraint(Sketcher.Constraint("DistanceY", -1, 1, 4, 2, Q("126.728302 mm")))
sketch1.addConstraint(Sketcher.Constraint("DistanceY", -1, 1, 38, 2, Q("97.3549 mm")))
sketch1.addConstraint(Sketcher.Constraint("DistanceX", -1, 1, 3, 3, Q("419.146719 mm")))
sketch1.addConstraint(Sketcher.Constraint("DistanceX", -1, 1, 4, 3, Q("411.610311 mm")))
sketch1.addConstraint(Sketcher.Constraint("DistanceY", -1, 1, 36, 3, Q("72.613962 mm")))
sketch1.addConstraint(Sketcher.Constraint("DistanceY", -1, 1, 39, 3, Q("91.36599 mm")))
sketch1.addConstraint(Sketcher.Constraint("DistanceY", -1, 1, 0, 1, Q("130.69586 mm")))
sketch1.addConstraint(Sketcher.Constraint("DistanceX", -1, 1, 3, 1, Q("416.99346 mm")))
sketch1.addConstraint(Sketcher.Constraint("DistanceX", -1, 1, 5, 1, Q("402.15829 mm")))
sketch1.addConstraint(Sketcher.Constraint("DistanceX", -1, 1, 8, 1, Q("314.858479 mm")))
sketch1.addConstraint(Sketcher.Constraint("DistanceY", -1, 1, 9, 2, Q("124.713168 mm")))
sketch1.addConstraint(Sketcher.Constraint("DistanceY", -1, 1, 10, 1, Q("122.064311 mm")))
sketch1.addConstraint(Sketcher.Constraint("DistanceX", -1, 1, 11, 2, Q("282.817118 mm")))
sketch1.addConstraint(Sketcher.Constraint("DistanceX", -1, 1, 12, 1, Q("276.37693 mm")))
sketch1.addConstraint(Sketcher.Constraint("DistanceX", -1, 1, 14, 1, Q("193.787021 mm")))
sketch1.addConstraint(Sketcher.Constraint("DistanceX", -1, 1, 15, 1, Q("191.041911 mm")))
sketch1.addConstraint(Sketcher.Constraint("DistanceX", -1, 1, 16, 2, Q("179.798089 mm")))
sketch1.addConstraint(Sketcher.Constraint("DistanceX", -1, 1, 17, 1, Q("177.052979 mm")))
sketch1.addConstraint(Sketcher.Constraint("DistanceY", -1, 1, 19, 2, Q("130.69586 mm")))
sketch1.addConstraint(Sketcher.Constraint("DistanceY", -1, 1, 22, 1, Q("92.82414 mm")))
sketch1.addConstraint(Sketcher.Constraint("DistanceX", -1, 1, 24, 1, Q("177.052979 mm")))
sketch1.addConstraint(Sketcher.Constraint("DistanceX", -1, 1, 25, 1, Q("179.798089 mm")))
sketch1.addConstraint(Sketcher.Constraint("DistanceX", -1, 1, 26, 2, Q("191.041911 mm")))
sketch1.addConstraint(Sketcher.Constraint("DistanceX", -1, 1, 27, 1, Q("193.787021 mm")))
sketch1.addConstraint(Sketcher.Constraint("DistanceX", -1, 1, 30, 1, Q("279.385822 mm")))
sketch1.addConstraint(Sketcher.Constraint("DistanceY", -1, 1, 31, 2, Q("98.527432 mm")))
sketch1.addConstraint(Sketcher.Constraint("DistanceY", -1, 1, 32, 1, Q("101.176289 mm")))
sketch1.addConstraint(Sketcher.Constraint("DistanceX", -1, 1, 33, 2, Q("311.62489 mm")))
sketch1.addConstraint(Sketcher.Constraint("DistanceX", -1, 1, 34, 1, Q("318.081479 mm")))
sketch1.addConstraint(Sketcher.Constraint("DistanceX", -1, 1, 36, 1, Q("403.56111 mm")))
sketch1.addConstraint(Sketcher.Constraint("DistanceY", -1, 1, 37, 1, Q("97.565059 mm")))
sketch1.addConstraint(Sketcher.Constraint("DistanceY", -1, 1, 41, 2, Q("92.82414 mm")))
sketch1.addConstraint(Sketcher.Constraint("DistanceX", -1, 1, 32, 3, Q("303.110643 mm")))
sketch1.addConstraint(Sketcher.Constraint("DistanceX", -1, 1, 1, 2, Q("435.329623 mm")))
sketch1.addConstraint(Sketcher.Constraint("DistanceX", -1, 1, 2, 1, Q("420.305835 mm")))
sketch1.addConstraint(Sketcher.Constraint("DistanceX", -1, 1, 7, 2, Q("321.961786 mm")))
sketch1.addConstraint(Sketcher.Constraint("DistanceX", -1, 1, 20, 1, Q("90.274517 mm")))
sketch1.addConstraint(Sketcher.Constraint("DistanceX", -1, 1, 21, 2, Q("90.274517 mm")))
sketch1.addConstraint(Sketcher.Constraint("DistanceX", -1, 1, 29, 2, Q("272.259375 mm")))
sketch1.addConstraint(Sketcher.Constraint("DistanceX", -1, 1, 35, 2, Q("383.059023 mm")))
sketch1.addConstraint(Sketcher.Constraint("DistanceX", -1, 1, 39, 1, Q("420.442765 mm")))
sketch1.addConstraint(Sketcher.Constraint("DistanceX", -1, 1, 40, 1, Q("434.726695 mm")))
sketch1.addConstraint(Sketcher.Constraint("DistanceX", -1, 1, 42, 1, Q("504.085483 mm")))
sketch1.addConstraint(Sketcher.Constraint("DistanceX", -1, 1, 43, 2, Q("504.085483 mm")))
pad1 = body.newObject("PartDesign::Pad", "Pad")
pad1.Profile = sketch1
pad1.Length = Q("0.375 in")

doc.recompute()
